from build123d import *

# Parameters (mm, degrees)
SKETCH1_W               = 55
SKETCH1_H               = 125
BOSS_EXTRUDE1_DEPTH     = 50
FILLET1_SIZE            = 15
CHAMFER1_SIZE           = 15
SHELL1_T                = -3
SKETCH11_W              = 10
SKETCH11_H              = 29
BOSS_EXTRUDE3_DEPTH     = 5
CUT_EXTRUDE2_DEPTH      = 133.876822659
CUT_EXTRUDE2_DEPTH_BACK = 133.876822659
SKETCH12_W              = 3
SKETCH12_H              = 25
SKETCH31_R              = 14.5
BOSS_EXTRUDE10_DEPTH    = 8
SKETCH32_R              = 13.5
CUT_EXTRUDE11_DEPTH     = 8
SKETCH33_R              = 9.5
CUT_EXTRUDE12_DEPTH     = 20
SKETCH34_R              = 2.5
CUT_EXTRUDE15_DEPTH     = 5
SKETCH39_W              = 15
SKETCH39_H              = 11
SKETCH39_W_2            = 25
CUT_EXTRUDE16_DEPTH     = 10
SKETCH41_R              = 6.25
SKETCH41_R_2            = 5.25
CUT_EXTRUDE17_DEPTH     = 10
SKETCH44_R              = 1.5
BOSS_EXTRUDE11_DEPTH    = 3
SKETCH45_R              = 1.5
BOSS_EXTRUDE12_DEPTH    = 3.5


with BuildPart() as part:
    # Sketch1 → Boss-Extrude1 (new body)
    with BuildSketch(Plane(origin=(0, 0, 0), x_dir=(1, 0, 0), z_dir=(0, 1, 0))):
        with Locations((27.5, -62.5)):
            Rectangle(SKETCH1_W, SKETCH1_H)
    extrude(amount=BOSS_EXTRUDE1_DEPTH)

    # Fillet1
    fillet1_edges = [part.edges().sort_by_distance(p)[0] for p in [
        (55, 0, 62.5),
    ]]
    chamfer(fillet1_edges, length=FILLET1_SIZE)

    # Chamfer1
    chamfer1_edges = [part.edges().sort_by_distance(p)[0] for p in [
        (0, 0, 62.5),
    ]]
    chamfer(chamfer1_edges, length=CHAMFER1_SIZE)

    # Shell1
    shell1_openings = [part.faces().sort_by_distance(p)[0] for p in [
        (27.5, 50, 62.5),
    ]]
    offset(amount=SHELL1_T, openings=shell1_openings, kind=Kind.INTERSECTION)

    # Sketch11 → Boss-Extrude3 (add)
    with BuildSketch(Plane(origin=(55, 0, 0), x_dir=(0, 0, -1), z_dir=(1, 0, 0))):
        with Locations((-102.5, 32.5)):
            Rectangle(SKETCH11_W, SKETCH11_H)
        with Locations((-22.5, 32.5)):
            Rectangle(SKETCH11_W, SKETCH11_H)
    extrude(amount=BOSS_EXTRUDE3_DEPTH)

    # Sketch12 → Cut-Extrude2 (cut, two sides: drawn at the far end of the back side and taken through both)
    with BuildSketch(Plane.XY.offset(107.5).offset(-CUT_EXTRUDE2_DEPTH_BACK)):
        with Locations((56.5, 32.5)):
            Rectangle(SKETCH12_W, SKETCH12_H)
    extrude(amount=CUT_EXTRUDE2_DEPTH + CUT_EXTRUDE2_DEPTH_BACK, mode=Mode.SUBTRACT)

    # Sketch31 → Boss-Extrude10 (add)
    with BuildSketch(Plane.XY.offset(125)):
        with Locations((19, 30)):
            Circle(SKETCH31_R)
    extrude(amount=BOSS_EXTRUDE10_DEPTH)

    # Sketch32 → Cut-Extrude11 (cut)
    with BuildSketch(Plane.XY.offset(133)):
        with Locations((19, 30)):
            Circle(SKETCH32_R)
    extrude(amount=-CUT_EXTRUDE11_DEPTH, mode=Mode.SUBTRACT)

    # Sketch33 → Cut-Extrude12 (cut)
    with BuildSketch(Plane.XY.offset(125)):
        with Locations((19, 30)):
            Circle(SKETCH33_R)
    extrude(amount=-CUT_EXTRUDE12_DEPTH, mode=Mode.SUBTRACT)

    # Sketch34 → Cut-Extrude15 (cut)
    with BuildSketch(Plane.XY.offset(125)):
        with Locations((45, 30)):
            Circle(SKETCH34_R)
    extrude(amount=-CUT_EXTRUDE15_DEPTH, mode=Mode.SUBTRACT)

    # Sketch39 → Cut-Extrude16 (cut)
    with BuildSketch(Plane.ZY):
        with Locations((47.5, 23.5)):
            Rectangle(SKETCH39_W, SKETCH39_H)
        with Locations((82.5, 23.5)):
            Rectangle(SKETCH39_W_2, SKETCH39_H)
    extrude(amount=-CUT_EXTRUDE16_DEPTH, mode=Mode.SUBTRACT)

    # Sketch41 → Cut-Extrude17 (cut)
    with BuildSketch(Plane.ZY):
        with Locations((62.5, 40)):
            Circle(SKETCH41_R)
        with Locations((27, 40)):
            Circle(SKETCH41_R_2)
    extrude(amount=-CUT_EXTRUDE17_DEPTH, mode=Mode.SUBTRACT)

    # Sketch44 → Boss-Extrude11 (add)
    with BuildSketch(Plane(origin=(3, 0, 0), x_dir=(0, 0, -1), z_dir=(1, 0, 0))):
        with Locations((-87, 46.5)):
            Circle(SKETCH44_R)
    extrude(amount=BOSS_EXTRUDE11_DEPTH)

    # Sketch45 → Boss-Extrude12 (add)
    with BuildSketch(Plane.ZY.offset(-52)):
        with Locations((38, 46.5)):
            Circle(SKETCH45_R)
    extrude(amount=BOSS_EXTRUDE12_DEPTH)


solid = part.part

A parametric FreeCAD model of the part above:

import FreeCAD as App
import Part
import Sketcher
Q = App.Units.Quantity


def edges_at(feature, points):
    """Names of the edges that pass closest to the given points."""
    edges = feature.Shape.Edges
    near = lambda p: min(range(len(edges)), key=lambda i: edges[i].distToShape(Part.Vertex(*p))[0])
    return sorted({f"Edge{near(p) + 1}" for p in points})


def faces_at(feature, points):
    """Names of the faces that lie closest to the given points."""
    faces = feature.Shape.Faces
    near = lambda p: min(range(len(faces)), key=lambda i: faces[i].distToShape(Part.Vertex(*p))[0])
    return sorted({f"Face{near(p) + 1}" for p in points})

doc = App.newDocument("Part")
body = doc.addObject("PartDesign::Body", "Body")

# Sketch on XZ plane
sketch1 = body.newObject("Sketcher::SketchObject", "Sketch")
sketch1.AttachmentSupport = (doc.getObject("XZ_Plane"), [""])
sketch1.MapMode = "FlatFace"
sketch1.addGeometry(Part.LineSegment(App.Vector(0, 0, 0), App.Vector(0, 125, 0)), False)
sketch1.addGeometry(Part.LineSegment(App.Vector(0, 125, 0), App.Vector(55, 125, 0)), False)
sketch1.addGeometry(Part.LineSegment(App.Vector(55, 125, 0), App.Vector(55, 0, 0)), False)
sketch1.addGeometry(Part.LineSegment(App.Vector(55, 0, 0), App.Vector(0, 0, 0)), False)
sketch1.addConstraint(Sketcher.Constraint("Coincident", 0, 2, 1, 1))
sketch1.addConstraint(Sketcher.Constraint("Coincident", 1, 2, 2, 1))
sketch1.addConstraint(Sketcher.Constraint("Coincident", 2, 2, 3, 1))
sketch1.addConstraint(Sketcher.Constraint("Coincident", 3, 2, 0, 1))
sketch1.addConstraint(Sketcher.Constraint("Vertical", 0))
sketch1.addConstraint(Sketcher.Constraint("Horizontal", 1))
sketch1.addConstraint(Sketcher.Constraint("Vertical", 2))
sketch1.addConstraint(Sketcher.Constraint("Horizontal", 3))
sketch1.addConstraint(Sketcher.Constraint("Coincident", 3, 2, -1, 1))
sketch1.addConstraint(Sketcher.Constraint("DistanceX", 1, 1, 1, 2, Q("55 mm")))
sketch1.addConstraint(Sketcher.Constraint("DistanceY", 0, 1, 0, 2, Q("125 mm")))
pad1 = body.newObject("PartDesign::Pad", "Pad")
pad1.Profile = sketch1
pad1.Length = 50
pad1.Reversed = True
doc.recompute()

chamfer = body.newObject("PartDesign::Chamfer", "Chamfer")
chamfer.Base = (pad1, edges_at(pad1, [(55, 0, 62.5)]))
chamfer.Size = 15
doc.recompute()

chamfer2 = body.newObject("PartDesign::Chamfer", "Chamfer001")
chamfer2.Base = (chamfer, edges_at(chamfer, [(0, 0, 62.5)]))
chamfer2.Size = 15
doc.recompute()

thickness = body.newObject("PartDesign::Thickness", "Thickness")
thickness.Base = (chamfer2, faces_at(chamfer2, [(27.5, 50, 62.5)]))
thickness.Value = 3
thickness.Reversed = True
thickness.Join = "Intersection"

# Sketch on YZ plane
sketch2 = body.newObject("Sketcher::SketchObject", "Sketch001")
sketch2.AttachmentSupport = (doc.getObject("YZ_Plane"), [""])
sketch2.MapMode = "FlatFace"
sketch2.AttachmentOffset = App.Placement(App.Vector(0, 0, 55), App.Rotation())
sketch2.addGeometry(Part.LineSegment(App.Vector(47, 108, 0), App.Vector(18, 108, 0)), False)
sketch2.addGeometry(Part.LineSegment(App.Vector(18, 108, 0), App.Vector(18, 98, 0)), False)
sketch2.addGeometry(Part.LineSegment(App.Vector(18, 98, 0), App.Vector(47, 98, 0)), False)
sketch2.addGeometry(Part.LineSegment(App.Vector(47, 98, 0), App.Vector(47, 108, 0)), False)
sketch2.addGeometry(Part.LineSegment(App.Vector(47, 28, 0), App.Vector(18, 28, 0)), False)
sketch2.addGeometry(Part.LineSegment(App.Vector(18, 28, 0), App.Vector(18, 18, 0)), False)
sketch2.addGeometry(Part.LineSegment(App.Vector(18, 18, 0), App.Vector(47, 18, 0)), False)
sketch2.addGeometry(Part.LineSegment(App.Vector(47, 18, 0), App.Vector(47, 28, 0)), False)
sketch2.addConstraint(Sketcher.Constraint("Coincident", 0, 2, 1, 1))
sketch2.addConstraint(Sketcher.Constraint("Coincident", 1, 2, 2, 1))
sketch2.addConstraint(Sketcher.Constraint("Coincident", 2, 2, 3, 1))
sketch2.addConstraint(Sketcher.Constraint("Coincident", 3, 2, 0, 1))
sketch2.addConstraint(Sketcher.Constraint("Coincident", 4, 2, 5, 1))
sketch2.addConstraint(Sketcher.Constraint("Coincident", 5, 2, 6, 1))
sketch2.addConstraint(Sketcher.Constraint("Coincident", 6, 2, 7, 1))
sketch2.addConstraint(Sketcher.Constraint("Coincident", 7, 2, 4, 1))
sketch2.addConstraint(Sketcher.Constraint("Horizontal", 0))
sketch2.addConstraint(Sketcher.Constraint("Vertical", 1))
sketch2.addConstraint(Sketcher.Constraint("Horizontal", 2))
sketch2.addConstraint(Sketcher.Constraint("Vertical", 3))
sketch2.addConstraint(Sketcher.Constraint("Horizontal", 4))
sketch2.addConstraint(Sketcher.Constraint("Vertical", 5))
sketch2.addConstraint(Sketcher.Constraint("Horizontal", 6))
sketch2.addConstraint(Sketcher.Constraint("Vertical", 7))
sketch2.addConstraint(Sketcher.Constraint("Vertical", 1, 2, 4, 2))
sketch2.addConstraint(Sketcher.Constraint("Vertical", 3, 2, 6, 2))
sketch2.addConstraint(Sketcher.Constraint("Equal", 3, 5))
sketch2.addConstraint(Sketcher.Constraint("DistanceX", 0, 2, 0, 1, Q("29 mm")))
sketch2.addConstraint(Sketcher.Constraint("DistanceY", 1, 2, 1, 1, Q("10 mm")))
sketch2.addConstraint(Sketcher.Constraint("DistanceX", -1, 1, 0, 2, Q("18 mm")))
sketch2.addConstraint(Sketcher.Constraint("DistanceY", 4, 2, 1, 2, Q("70 mm")))
sketch2.addConstraint(Sketcher.Constraint("DistanceY", -1, 1, 0, 2, Q("107.5 mm")))
pad2 = body.newObject("PartDesign::Pad", "Pad001")
pad2.Profile = sketch2
pad2.Length = 5

# Sketch on XY plane
sketch3 = body.newObject("Sketcher::SketchObject", "Sketch002")
sketch3.AttachmentSupport = (doc.getObject("XY_Plane"), [""])
sketch3.MapMode = "FlatFace"
sketch3.AttachmentOffset = App.Placement(App.Vector(0, 0, 107.5), App.Rotation())
sketch3.addGeometry(Part.LineSegment(App.Vector(55, 45, 0), App.Vector(55, 20, 0)), False)
sketch3.addGeometry(Part.LineSegment(App.Vector(55, 20, 0), App.Vector(58, 20, 0)), False)
sketch3.addGeometry(Part.LineSegment(App.Vector(58, 20, 0), App.Vector(58, 45, 0)), False)
sketch3.addGeometry(Part.LineSegment(App.Vector(58, 45, 0), App.Vector(55, 45, 0)), False)
sketch3.addConstraint(Sketcher.Constraint("Coincident", 0, 2, 1, 1))
sketch3.addConstraint(Sketcher.Constraint("Coincident", 1, 2, 2, 1))
sketch3.addConstraint(Sketcher.Constraint("Coincident", 2, 2, 3, 1))
sketch3.addConstraint(Sketcher.Constraint("Coincident", 3, 2, 0, 1))
sketch3.addConstraint(Sketcher.Constraint("Vertical", 0))
sketch3.addConstraint(Sketcher.Constraint("Horizontal", 1))
sketch3.addConstraint(Sketcher.Constraint("Vertical", 2))
sketch3.addConstraint(Sketcher.Constraint("Horizontal", 3))
sketch3.addConstraint(Sketcher.Constraint("DistanceX", 1, 1, 1, 2, Q("3 mm")))
sketch3.addConstraint(Sketcher.Constraint("DistanceY", 0, 2, 0, 1, Q("25 mm")))
sketch3.addConstraint(Sketcher.Constraint("DistanceX", -1, 1, 0, 2, Q("55 mm")))
sketch3.addConstraint(Sketcher.Constraint("DistanceY", -1, 1, 0, 2, Q("20 mm")))
pocket1 = body.newObject("PartDesign::Pocket", "Pocket")
pocket1.Profile = sketch3
pocket1.Type = "ThroughAll"
pocket1.Midplane = True

# Sketch on XY plane
sketch4 = body.newObject("Sketcher::SketchObject", "Sketch003")
sketch4.AttachmentSupport = (doc.getObject("XY_Plane"), [""])
sketch4.MapMode = "FlatFace"
sketch4.AttachmentOffset = App.Placement(App.Vector(0, 0, 125), App.Rotation())
sketch4.addGeometry(Part.Circle(App.Vector(19, 30, 0), App.Vector(0, 0, 1), 14), False)
sketch4.addConstraint(Sketcher.Constraint("Diameter", 0, Q("29 mm")))
sketch4.addConstraint(Sketcher.Constraint("DistanceX", -1, 1, 0, 3, Q("19 mm")))
sketch4.addConstraint(Sketcher.Constraint("DistanceY", -1, 1, 0, 3, Q("30 mm")))
pad3 = body.newObject("PartDesign::Pad", "Pad002")
pad3.Profile = sketch4
pad3.Length = 8

# Sketch on XY plane
sketch5 = body.newObject("Sketcher::SketchObject", "Sketch004")
sketch5.AttachmentSupport = (doc.getObject("XY_Plane"), [""])
sketch5.MapMode = "FlatFace"
sketch5.AttachmentOffset = App.Placement(App.Vector(0, 0, 133), App.Rotation())
sketch5.addGeometry(Part.Circle(App.Vector(19, 30, 0), App.Vector(0, 0, 1), 14), False)
sketch5.addConstraint(Sketcher.Constraint("Diameter", 0, Q("27 mm")))
sketch5.addConstraint(Sketcher.Constraint("DistanceX", -1, 1, 0, 3, Q("19 mm")))
sketch5.addConstraint(Sketcher.Constraint("DistanceY", -1, 1, 0, 3, Q("30 mm")))
pocket2 = body.newObject("PartDesign::Pocket", "Pocket001")
pocket2.Profile = sketch5
pocket2.Length = 8

# Sketch on XY plane
sketch6 = body.newObject("Sketcher::SketchObject", "Sketch005")
sketch6.AttachmentSupport = (doc.getObject("XY_Plane"), [""])
sketch6.MapMode = "FlatFace"
sketch6.AttachmentOffset = App.Placement(App.Vector(0, 0, 125), App.Rotation())
sketch6.addGeometry(Part.Circle(App.Vector(19, 30, 0), App.Vector(0, 0, 1), 10), False)
sketch6.addConstraint(Sketcher.Constraint("Diameter", 0, Q("19 mm")))
sketch6.addConstraint(Sketcher.Constraint("DistanceX", -1, 1, 0, 3, Q("19 mm")))
sketch6.addConstraint(Sketcher.Constraint("DistanceY", -1, 1, 0, 3, Q("30 mm")))
pocket3 = body.newObject("PartDesign::Pocket", "Pocket002")
pocket3.Profile = sketch6
pocket3.Length = 20

# Sketch on XY plane
sketch7 = body.newObject("Sketcher::SketchObject", "Sketch006")
sketch7.AttachmentSupport = (doc.getObject("XY_Plane"), [""])
sketch7.MapMode = "FlatFace"
sketch7.AttachmentOffset = App.Placement(App.Vector(0, 0, 125), App.Rotation())
sketch7.addGeometry(Part.Circle(App.Vector(45, 30, 0), App.Vector(0, 0, 1), 2.5), False)
sketch7.addConstraint(Sketcher.Constraint("Diameter", 0, Q("5 mm")))
sketch7.addConstraint(Sketcher.Constraint("DistanceX", -1, 1, 0, 3, Q("45 mm")))
sketch7.addConstraint(Sketcher.Constraint("DistanceY", -1, 1, 0, 3, Q("30 mm")))
pocket4 = body.newObject("PartDesign::Pocket", "Pocket003")
pocket4.Profile = sketch7
pocket4.Length = 5

# Sketch on YZ plane
sketch8 = body.newObject("Sketcher::SketchObject", "Sketch007")
sketch8.AttachmentSupport = (doc.getObject("YZ_Plane"), [""])
sketch8.MapMode = "FlatFace"
sketch8.addGeometry(Part.LineSegment(App.Vector(29, 40, 0), App.Vector(18, 40, 0)), False)
sketch8.addGeometry(Part.LineSegment(App.Vector(18, 40, 0), App.Vector(18, 55, 0)), False)
sketch8.addGeometry(Part.LineSegment(App.Vector(18, 55, 0), App.Vector(29, 55, 0)), False)
sketch8.addGeometry(Part.LineSegment(App.Vector(29, 55, 0), App.Vector(29, 40, 0)), False)
sketch8.addGeometry(Part.LineSegment(App.Vector(29, 70, 0), App.Vector(18, 70, 0)), False)
sketch8.addGeometry(Part.LineSegment(App.Vector(18, 70, 0), App.Vector(18, 95, 0)), False)
sketch8.addGeometry(Part.LineSegment(App.Vector(18, 95, 0), App.Vector(29, 95, 0)), False)
sketch8.addGeometry(Part.LineSegment(App.Vector(29, 95, 0), App.Vector(29, 70, 0)), False)
sketch8.addConstraint(Sketcher.Constraint("Coincident", 0, 2, 1, 1))
sketch8.addConstraint(Sketcher.Constraint("Coincident", 1, 2, 2, 1))
sketch8.addConstraint(Sketcher.Constraint("Coincident", 2, 2, 3, 1))
sketch8.addConstraint(Sketcher.Constraint("Coincident", 3, 2, 0, 1))
sketch8.addConstraint(Sketcher.Constraint("Coincident", 4, 2, 5, 1))
sketch8.addConstraint(Sketcher.Constraint("Coincident", 5, 2, 6, 1))
sketch8.addConstraint(Sketcher.Constraint("Coincident", 6, 2, 7, 1))
sketch8.addConstraint(Sketcher.Constraint("Coincident", 7, 2, 4, 1))
sketch8.addConstraint(Sketcher.Constraint("Horizontal", 0))
sketch8.addConstraint(Sketcher.Constraint("Vertical", 1))
sketch8.addConstraint(Sketcher.Constraint("Horizontal", 2))
sketch8.addConstraint(Sketcher.Constraint("Vertical", 3))
sketch8.addConstraint(Sketcher.Constraint("Horizontal", 4))
sketch8.addConstraint(Sketcher.Constraint("Vertical", 5))
sketch8.addConstraint(Sketcher.Constraint("Horizontal", 6))
sketch8.addConstraint(Sketcher.Constraint("Vertical", 7))
sketch8.addConstraint(Sketcher.Constraint("Vertical", 1, 2, 4, 2))
sketch8.addConstraint(Sketcher.Constraint("Vertical", 3, 2, 6, 2))
sketch8.addConstraint(Sketcher.Constraint("DistanceX", 0, 2, 0, 1, Q("11 mm")))
sketch8.addConstraint(Sketcher.Constraint("DistanceY", 1, 1, 1, 2, Q("15 mm")))
sketch8.addConstraint(Sketcher.Constraint("DistanceY", 5, 1, 5, 2, Q("25 mm")))
sketch8.addConstraint(Sketcher.Constraint("DistanceX", -1, 1, 0, 2, Q("18 mm")))
sketch8.addConstraint(Sketcher.Constraint("DistanceY", -1, 1, 0, 2, Q("40 mm")))
sketch8.addConstraint(Sketcher.Constraint("DistanceY", -1, 1, 4, 2, Q("70 mm")))
pocket5 = body.newObject("PartDesign::Pocket", "Pocket004")
pocket5.Profile = sketch8
pocket5.Length = 10
pocket5.Reversed = True

# Sketch on YZ plane
sketch9 = body.newObject("Sketcher::SketchObject", "Sketch008")
sketch9.AttachmentSupport = (doc.getObject("YZ_Plane"), [""])
sketch9.MapMode = "FlatFace"
sketch9.addGeometry(Part.Circle(App.Vector(40, 62, 0), App.Vector(0, 0, 1), 6), False)
sketch9.addGeometry(Part.Circle(App.Vector(40, 27, 0), App.Vector(0, 0, 1), 5), False)
sketch9.addConstraint(Sketcher.Constraint("Vertical", 0, 3, 1, 3))
sketch9.addConstraint(Sketcher.Constraint("Diameter", 0, Q("12.5 mm")))
sketch9.addConstraint(Sketcher.Constraint("Diameter", 1, Q("10.5 mm")))
sketch9.addConstraint(Sketcher.Constraint("DistanceX", -1, 1, 0, 3, Q("40 mm")))
sketch9.addConstraint(Sketcher.Constraint("DistanceY", -1, 1, 1, 3, Q("27 mm")))
sketch9.addConstraint(Sketcher.Constraint("DistanceY", -1, 1, 0, 3, Q("62.5 mm")))
pocket6 = body.newObject("PartDesign::Pocket", "Pocket005")
pocket6.Profile = sketch9
pocket6.Length = 10
pocket6.Reversed = True

# Sketch on YZ plane
sketch10 = body.newObject("Sketcher::SketchObject", "Sketch009")
sketch10.AttachmentSupport = (doc.getObject("YZ_Plane"), [""])
sketch10.MapMode = "FlatFace"
sketch10.AttachmentOffset = App.Placement(App.Vector(0, 0, 3), App.Rotation())
sketch10.addGeometry(Part.Circle(App.Vector(46.5, 87, 0), App.Vector(0, 0, 1), 1.5), False)
sketch10.addConstraint(Sketcher.Constraint("Diameter", 0, Q("3 mm")))
sketch10.addConstraint(Sketcher.Constraint("DistanceY", -1, 1, 0, 3, Q("87 mm")))
sketch10.addConstraint(Sketcher.Constraint("DistanceX", -1, 1, 0, 3, Q("46.5 mm")))
pad4 = body.newObject("PartDesign::Pad", "Pad003")
pad4.Profile = sketch10
pad4.Length = 3

# Sketch on YZ plane
sketch11 = body.newObject("Sketcher::SketchObject", "Sketch010")
sketch11.AttachmentSupport = (doc.getObject("YZ_Plane"), [""])
sketch11.MapMode = "FlatFace"
sketch11.AttachmentOffset = App.Placement(App.Vector(0, 0, 52), App.Rotation())
sketch11.addGeometry(Part.Circle(App.Vector(46.5, 38, 0), App.Vector(0, 0, 1), 1.5), False)
sketch11.addConstraint(Sketcher.Constraint("Diameter", 0, Q("3 mm")))
sketch11.addConstraint(Sketcher.Constraint("DistanceY", -1, 1, 0, 3, Q("38 mm")))
sketch11.addConstraint(Sketcher.Constraint("DistanceX", -1, 1, 0, 3, Q("46.5 mm")))
pad5 = body.newObject("PartDesign::Pad", "Pad004")
pad5.Profile = sketch11
pad5.Length = 3.5
pad5.Reversed = True

doc.recompute()
